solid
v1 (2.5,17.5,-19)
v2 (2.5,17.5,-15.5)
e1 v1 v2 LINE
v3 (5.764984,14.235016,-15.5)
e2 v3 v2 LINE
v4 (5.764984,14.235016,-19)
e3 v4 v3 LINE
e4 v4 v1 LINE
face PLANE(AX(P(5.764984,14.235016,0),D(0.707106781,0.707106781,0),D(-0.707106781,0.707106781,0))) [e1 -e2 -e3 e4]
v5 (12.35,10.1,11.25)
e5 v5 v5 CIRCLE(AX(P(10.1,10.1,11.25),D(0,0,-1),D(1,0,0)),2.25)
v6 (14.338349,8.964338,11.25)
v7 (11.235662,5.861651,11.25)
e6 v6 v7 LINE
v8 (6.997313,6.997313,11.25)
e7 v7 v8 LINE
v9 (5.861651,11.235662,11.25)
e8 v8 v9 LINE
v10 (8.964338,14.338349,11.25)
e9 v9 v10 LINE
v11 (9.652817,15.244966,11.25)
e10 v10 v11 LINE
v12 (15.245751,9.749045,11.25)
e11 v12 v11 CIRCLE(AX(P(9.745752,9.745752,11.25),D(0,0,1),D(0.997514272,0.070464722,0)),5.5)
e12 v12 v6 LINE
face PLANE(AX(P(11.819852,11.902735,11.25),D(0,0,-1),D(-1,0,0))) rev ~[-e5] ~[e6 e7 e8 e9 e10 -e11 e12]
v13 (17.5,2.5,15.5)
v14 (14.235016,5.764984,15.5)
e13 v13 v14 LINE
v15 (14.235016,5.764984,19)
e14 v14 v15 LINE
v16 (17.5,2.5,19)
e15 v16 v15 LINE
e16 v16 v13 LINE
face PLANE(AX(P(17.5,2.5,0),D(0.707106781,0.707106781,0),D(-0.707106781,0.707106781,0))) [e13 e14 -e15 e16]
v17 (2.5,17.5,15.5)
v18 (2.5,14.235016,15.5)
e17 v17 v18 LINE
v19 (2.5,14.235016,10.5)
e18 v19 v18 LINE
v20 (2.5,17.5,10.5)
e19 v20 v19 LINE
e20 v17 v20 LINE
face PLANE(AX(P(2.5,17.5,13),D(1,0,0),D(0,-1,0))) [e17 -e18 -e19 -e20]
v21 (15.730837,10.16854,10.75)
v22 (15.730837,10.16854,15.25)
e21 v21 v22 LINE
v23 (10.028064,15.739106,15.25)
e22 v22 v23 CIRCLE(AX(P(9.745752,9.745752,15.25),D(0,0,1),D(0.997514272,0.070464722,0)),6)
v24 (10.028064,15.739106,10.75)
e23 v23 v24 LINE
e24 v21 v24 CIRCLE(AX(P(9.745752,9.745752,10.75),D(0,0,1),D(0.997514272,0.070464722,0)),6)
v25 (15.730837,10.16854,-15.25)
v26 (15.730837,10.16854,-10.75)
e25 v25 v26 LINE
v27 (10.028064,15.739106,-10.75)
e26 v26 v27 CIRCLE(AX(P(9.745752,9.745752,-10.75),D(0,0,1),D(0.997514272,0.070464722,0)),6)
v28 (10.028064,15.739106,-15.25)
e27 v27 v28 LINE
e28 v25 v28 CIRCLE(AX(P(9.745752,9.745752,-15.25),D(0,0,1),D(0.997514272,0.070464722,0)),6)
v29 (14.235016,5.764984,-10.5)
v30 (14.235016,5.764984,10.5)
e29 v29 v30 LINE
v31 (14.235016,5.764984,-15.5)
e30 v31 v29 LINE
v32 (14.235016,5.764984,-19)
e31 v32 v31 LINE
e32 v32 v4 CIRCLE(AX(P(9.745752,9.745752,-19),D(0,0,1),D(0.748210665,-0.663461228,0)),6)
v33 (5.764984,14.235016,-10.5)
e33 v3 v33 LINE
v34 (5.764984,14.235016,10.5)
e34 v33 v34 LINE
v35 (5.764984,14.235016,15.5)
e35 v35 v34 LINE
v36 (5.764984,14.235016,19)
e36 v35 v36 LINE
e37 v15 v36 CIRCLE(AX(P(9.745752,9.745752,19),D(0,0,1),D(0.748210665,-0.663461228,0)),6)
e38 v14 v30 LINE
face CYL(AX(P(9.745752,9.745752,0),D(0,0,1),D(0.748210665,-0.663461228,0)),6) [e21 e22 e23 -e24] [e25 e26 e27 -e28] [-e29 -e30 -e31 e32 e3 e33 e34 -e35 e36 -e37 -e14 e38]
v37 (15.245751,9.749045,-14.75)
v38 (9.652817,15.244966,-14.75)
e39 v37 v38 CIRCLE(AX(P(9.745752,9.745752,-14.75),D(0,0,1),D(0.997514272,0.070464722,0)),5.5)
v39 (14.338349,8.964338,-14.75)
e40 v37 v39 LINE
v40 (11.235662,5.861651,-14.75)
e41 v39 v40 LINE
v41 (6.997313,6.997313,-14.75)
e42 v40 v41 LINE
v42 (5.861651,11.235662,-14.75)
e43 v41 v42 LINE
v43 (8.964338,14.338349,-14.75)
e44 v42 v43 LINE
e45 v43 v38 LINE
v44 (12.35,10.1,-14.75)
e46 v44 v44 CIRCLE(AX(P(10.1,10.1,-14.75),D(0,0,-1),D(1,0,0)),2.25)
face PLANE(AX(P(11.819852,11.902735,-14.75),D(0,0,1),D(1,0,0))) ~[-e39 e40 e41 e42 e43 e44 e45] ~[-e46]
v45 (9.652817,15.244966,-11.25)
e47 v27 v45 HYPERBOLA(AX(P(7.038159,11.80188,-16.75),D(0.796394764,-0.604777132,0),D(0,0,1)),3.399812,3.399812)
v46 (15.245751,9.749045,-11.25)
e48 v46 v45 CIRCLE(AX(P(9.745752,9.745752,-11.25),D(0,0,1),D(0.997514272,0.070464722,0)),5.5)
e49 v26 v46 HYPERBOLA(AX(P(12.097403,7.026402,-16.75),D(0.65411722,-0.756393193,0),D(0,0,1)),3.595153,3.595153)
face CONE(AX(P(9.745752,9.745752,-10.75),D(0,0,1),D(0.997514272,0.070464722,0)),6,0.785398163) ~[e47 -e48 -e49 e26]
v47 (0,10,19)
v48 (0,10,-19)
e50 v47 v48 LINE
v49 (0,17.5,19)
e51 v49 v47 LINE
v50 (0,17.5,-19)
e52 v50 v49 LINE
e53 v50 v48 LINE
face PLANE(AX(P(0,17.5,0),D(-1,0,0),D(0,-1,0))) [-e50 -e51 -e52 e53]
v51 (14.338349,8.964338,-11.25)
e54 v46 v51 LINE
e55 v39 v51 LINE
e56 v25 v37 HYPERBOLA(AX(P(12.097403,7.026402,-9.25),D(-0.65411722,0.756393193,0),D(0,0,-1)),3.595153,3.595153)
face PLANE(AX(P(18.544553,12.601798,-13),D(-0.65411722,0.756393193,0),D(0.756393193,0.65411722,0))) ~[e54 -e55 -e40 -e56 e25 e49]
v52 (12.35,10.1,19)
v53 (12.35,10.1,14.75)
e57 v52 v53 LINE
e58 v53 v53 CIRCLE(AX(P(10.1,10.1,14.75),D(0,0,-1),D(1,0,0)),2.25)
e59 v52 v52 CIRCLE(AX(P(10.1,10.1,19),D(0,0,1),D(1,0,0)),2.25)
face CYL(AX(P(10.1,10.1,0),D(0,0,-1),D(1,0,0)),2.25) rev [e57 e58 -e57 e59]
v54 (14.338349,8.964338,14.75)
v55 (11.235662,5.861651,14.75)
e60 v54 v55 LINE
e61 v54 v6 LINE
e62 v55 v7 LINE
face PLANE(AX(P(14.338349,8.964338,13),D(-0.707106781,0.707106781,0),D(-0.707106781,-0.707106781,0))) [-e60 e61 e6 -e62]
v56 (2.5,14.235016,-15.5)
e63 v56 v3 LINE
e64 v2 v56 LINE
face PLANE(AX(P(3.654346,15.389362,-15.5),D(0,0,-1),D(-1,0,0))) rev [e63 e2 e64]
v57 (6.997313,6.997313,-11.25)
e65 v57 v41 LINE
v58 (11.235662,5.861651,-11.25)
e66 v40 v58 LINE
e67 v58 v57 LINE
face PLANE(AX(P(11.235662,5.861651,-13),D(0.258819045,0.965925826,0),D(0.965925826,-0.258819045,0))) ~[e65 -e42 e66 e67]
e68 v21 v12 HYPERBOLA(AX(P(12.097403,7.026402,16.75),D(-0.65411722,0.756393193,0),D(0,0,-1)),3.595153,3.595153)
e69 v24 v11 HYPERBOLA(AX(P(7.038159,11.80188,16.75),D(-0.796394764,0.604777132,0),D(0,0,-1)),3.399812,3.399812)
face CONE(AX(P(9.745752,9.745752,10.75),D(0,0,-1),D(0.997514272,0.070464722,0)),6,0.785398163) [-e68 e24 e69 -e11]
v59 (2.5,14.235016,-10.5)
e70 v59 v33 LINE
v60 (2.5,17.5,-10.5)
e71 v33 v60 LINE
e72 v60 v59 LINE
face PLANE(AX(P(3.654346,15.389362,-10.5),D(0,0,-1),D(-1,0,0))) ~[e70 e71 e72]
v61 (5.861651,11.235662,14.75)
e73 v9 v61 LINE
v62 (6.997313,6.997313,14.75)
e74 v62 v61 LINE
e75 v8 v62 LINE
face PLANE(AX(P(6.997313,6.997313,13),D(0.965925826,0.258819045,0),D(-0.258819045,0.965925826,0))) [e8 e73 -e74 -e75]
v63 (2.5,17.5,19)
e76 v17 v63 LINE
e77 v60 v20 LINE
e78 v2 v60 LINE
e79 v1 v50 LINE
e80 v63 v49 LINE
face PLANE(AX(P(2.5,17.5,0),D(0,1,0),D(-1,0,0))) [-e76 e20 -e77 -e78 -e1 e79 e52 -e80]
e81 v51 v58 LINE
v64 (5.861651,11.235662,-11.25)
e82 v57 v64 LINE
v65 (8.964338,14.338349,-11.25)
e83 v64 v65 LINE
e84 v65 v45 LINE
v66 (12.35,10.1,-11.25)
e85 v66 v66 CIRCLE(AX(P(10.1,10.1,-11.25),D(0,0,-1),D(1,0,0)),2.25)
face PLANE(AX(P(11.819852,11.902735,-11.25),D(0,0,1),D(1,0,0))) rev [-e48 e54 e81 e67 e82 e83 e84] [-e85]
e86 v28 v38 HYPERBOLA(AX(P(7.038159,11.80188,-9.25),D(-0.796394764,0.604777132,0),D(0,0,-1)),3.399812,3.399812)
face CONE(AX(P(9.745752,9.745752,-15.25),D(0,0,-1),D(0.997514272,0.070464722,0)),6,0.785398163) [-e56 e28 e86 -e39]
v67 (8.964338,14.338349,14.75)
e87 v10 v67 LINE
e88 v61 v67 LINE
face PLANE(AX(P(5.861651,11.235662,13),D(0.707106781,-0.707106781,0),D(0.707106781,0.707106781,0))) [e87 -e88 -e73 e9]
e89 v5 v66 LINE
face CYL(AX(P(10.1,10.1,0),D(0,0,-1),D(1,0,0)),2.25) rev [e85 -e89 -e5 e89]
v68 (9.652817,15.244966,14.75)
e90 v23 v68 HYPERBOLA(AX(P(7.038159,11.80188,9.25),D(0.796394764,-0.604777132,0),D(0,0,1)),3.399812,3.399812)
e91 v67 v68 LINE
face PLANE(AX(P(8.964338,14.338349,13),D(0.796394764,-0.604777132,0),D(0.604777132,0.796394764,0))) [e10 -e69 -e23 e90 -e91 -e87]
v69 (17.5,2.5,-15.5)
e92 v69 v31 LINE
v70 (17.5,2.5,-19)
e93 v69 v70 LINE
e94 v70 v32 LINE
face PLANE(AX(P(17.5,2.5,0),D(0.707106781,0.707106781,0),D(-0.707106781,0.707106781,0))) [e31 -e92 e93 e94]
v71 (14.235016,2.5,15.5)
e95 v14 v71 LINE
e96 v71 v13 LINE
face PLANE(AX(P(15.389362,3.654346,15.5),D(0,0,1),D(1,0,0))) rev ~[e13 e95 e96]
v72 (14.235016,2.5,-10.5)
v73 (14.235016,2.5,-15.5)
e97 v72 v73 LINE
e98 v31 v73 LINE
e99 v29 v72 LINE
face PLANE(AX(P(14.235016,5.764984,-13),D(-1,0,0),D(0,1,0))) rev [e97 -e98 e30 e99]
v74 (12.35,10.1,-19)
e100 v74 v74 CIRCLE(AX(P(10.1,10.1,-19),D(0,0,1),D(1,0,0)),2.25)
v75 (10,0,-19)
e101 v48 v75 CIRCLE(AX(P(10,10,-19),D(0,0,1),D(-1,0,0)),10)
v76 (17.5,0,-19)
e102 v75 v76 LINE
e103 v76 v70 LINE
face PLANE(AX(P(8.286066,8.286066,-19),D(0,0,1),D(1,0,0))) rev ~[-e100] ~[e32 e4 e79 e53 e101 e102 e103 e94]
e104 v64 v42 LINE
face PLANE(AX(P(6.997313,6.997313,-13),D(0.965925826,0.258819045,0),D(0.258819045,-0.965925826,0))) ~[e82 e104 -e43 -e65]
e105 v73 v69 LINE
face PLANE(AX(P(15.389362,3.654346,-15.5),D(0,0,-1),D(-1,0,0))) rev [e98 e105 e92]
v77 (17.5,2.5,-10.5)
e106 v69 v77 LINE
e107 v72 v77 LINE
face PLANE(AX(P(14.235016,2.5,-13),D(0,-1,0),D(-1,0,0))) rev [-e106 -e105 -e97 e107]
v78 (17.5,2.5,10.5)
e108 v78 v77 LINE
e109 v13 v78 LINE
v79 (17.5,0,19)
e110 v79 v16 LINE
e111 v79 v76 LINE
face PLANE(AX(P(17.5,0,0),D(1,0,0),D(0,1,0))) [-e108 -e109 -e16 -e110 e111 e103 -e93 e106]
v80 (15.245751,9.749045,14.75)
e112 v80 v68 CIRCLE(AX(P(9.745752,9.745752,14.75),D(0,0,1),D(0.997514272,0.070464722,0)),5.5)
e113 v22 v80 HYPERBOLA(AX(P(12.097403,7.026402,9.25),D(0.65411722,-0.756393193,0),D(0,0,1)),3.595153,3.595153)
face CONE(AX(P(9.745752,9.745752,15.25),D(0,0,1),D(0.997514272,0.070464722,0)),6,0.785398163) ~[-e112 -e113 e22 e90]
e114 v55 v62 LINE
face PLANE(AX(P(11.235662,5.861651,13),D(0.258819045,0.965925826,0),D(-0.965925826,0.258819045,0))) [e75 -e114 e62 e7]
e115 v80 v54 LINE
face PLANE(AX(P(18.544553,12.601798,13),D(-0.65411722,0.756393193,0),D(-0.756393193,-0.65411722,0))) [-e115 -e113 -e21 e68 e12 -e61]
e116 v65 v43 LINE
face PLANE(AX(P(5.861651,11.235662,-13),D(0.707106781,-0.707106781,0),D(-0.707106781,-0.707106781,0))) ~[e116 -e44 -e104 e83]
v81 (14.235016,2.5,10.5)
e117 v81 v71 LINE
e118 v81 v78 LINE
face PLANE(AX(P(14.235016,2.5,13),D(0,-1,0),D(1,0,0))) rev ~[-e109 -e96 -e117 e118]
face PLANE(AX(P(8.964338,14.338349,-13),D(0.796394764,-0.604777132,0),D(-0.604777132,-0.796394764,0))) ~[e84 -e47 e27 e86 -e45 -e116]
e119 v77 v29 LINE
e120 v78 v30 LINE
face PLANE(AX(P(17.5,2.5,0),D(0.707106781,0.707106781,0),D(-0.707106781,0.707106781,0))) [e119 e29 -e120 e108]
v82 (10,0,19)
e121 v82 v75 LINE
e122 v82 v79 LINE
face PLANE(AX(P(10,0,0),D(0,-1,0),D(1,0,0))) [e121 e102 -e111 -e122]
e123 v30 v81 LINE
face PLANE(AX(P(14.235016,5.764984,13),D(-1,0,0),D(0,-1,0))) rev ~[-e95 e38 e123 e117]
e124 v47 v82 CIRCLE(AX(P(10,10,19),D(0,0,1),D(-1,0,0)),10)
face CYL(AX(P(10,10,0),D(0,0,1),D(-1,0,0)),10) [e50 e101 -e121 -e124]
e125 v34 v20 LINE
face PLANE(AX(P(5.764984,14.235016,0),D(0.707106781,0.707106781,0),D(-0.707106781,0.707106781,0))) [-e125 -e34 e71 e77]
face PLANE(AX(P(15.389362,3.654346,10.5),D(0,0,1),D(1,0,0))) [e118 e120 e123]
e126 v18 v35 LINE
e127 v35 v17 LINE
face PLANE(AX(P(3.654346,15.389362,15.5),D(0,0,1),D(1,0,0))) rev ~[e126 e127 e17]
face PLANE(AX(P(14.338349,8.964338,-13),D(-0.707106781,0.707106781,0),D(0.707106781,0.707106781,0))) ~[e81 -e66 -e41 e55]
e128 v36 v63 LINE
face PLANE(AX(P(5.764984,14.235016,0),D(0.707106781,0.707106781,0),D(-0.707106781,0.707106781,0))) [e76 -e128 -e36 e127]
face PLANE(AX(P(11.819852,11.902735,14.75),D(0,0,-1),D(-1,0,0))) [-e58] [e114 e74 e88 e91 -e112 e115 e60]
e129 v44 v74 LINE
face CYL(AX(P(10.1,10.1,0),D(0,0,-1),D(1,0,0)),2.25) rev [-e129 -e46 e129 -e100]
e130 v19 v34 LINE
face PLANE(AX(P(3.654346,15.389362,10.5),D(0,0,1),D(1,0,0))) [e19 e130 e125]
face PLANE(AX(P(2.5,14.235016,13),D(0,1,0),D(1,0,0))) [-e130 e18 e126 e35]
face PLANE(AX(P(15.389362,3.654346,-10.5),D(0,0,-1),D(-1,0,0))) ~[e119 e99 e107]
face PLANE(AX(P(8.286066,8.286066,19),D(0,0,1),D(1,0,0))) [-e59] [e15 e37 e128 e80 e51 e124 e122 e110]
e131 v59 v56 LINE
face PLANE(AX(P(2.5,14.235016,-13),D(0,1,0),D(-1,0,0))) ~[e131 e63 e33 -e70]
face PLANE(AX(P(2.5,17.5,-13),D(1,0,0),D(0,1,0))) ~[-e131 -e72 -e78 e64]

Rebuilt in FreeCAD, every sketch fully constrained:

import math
import FreeCAD as App
import Part
import Sketcher
Q = App.Units.Quantity


def edges_at(feature, points):
    """Names of the edges that pass closest to the given points."""
    edges = feature.Shape.Edges
    near = lambda p: min(range(len(edges)), key=lambda i: edges[i].distToShape(Part.Vertex(*p))[0])
    return sorted({f"Edge{near(p) + 1}" for p in points})


def add_polygon(sketch, points):
    """Adds a closed chain of lines whose ends are joined by coincident constraints."""
    first, n = sketch.GeometryCount, len(points)
    for a, b in zip(points, points[1:] + points[:1]):
        sketch.addGeometry(Part.LineSegment(App.Vector(*a, 0), App.Vector(*b, 0)), False)
    for i in range(n):
        sketch.addConstraint(Sketcher.Constraint("Coincident", first + i, 2, first + (i + 1) % n, 1))

doc = App.newDocument("Part")
body = doc.addObject("PartDesign::Body", "Body")

# Sketch on XY plane
sketch1 = body.newObject("Sketcher::SketchObject", "Sketch")
sketch1.AttachmentSupport = (doc.getObject("XY_Plane"), [""])
sketch1.MapMode = "FlatFace"
sketch1.addGeometry(Part.LineSegment(App.Vector(17.5, 2.5, 0), App.Vector(14.2, 5.8, 0)), False)
sketch1.addGeometry(Part.ArcOfCircle(Part.Circle(App.Vector(9.7, 9.7, 0), App.Vector(0, 0, 1), 6), math.radians(-42), math.radians(132)), False)
sketch1.addGeometry(Part.LineSegment(App.Vector(5.8, 14.2, 0), App.Vector(2.5, 17.5, 0)), False)
sketch1.addGeometry(Part.LineSegment(App.Vector(2.5, 17.5, 0), App.Vector(0, 17.5, 0)), False)
sketch1.addGeometry(Part.LineSegment(App.Vector(0, 17.5, 0), App.Vector(0, 10, 0)), False)
sketch1.addGeometry(Part.ArcOfCircle(Part.Circle(App.Vector(10, 10, 0), App.Vector(0, 0, 1), 10), math.radians(180), math.radians(270)), False)
sketch1.addGeometry(Part.LineSegment(App.Vector(10, 0, 0), App.Vector(17.5, 0, 0)), False)
sketch1.addGeometry(Part.LineSegment(App.Vector(17.5, 0, 0), App.Vector(17.5, 2.5, 0)), False)
sketch1.addGeometry(Part.Circle(App.Vector(10.1, 10.1, 0), App.Vector(0, 0, 1), 2.2), False)
sketch1.addConstraint(Sketcher.Constraint("Coincident", 0, 2, 1, 1))
sketch1.addConstraint(Sketcher.Constraint("Coincident", 1, 2, 2, 1))
sketch1.addConstraint(Sketcher.Constraint("Coincident", 2, 2, 3, 1))
sketch1.addConstraint(Sketcher.Constraint("Coincident", 3, 2, 4, 1))
sketch1.addConstraint(Sketcher.Constraint("Tangent", 4, 2, 5, 1))
sketch1.addConstraint(Sketcher.Constraint("Tangent", 5, 2, 6, 1))
sketch1.addConstraint(Sketcher.Constraint("Coincident", 6, 2, 7, 1))
sketch1.addConstraint(Sketcher.Constraint("Coincident", 7, 2, 0, 1))
sketch1.addConstraint(Sketcher.Constraint("Horizontal", 3))
sketch1.addConstraint(Sketcher.Constraint("Vertical", 4))
sketch1.addConstraint(Sketcher.Constraint("Horizontal", 6))
sketch1.addConstraint(Sketcher.Constraint("Vertical", 7))
sketch1.addConstraint(Sketcher.Constraint("PointOnObject", 3, 2, -2))
sketch1.addConstraint(Sketcher.Constraint("PointOnObject", 5, 2, -1))
sketch1.addConstraint(Sketcher.Constraint("Parallel", 0, 2))
sketch1.addConstraint(Sketcher.Constraint("Equal", 6, 4))
sketch1.addConstraint(Sketcher.Constraint("Equal", 3, 7))
sketch1.addConstraint(Sketcher.Constraint("Equal", 0, 2))
sketch1.addConstraint(Sketcher.Constraint("Radius", 1, Q("6 mm")))
sketch1.addConstraint(Sketcher.Constraint("Radius", 5, Q("10 mm")))
sketch1.addConstraint(Sketcher.Constraint("Diameter", 8, Q("4.5 mm")))
sketch1.addConstraint(Sketcher.Constraint("Angle", 0, Q("135 deg")))
sketch1.addConstraint(Sketcher.Constraint("DistanceX", 3, 2, 3, 1, Q("2.5 mm")))
sketch1.addConstraint(Sketcher.Constraint("DistanceX", 6, 1, 6, 2, Q("7.5 mm")))
sketch1.addConstraint(Sketcher.Constraint("DistanceX", -1, 1, 8, 3, Q("10.1 mm")))
sketch1.addConstraint(Sketcher.Constraint("DistanceY", -1, 1, 8, 3, Q("10.1 mm")))
sketch1.addConstraint(Sketcher.Constraint("DistanceX", -1, 1, 1, 3, Q("9.745752 mm")))
pad1 = body.newObject("PartDesign::Pad", "Pad")
pad1.Profile = sketch1
pad1.Length = 38
pad1.Midplane = True

# Sketch on XY plane
sketch2 = body.newObject("Sketcher::SketchObject", "Sketch001")
sketch2.AttachmentSupport = (doc.getObject("XY_Plane"), [""])
sketch2.MapMode = "FlatFace"
sketch2.AttachmentOffset = App.Placement(App.Vector(0, 0, 13), App.Rotation())
add_polygon(sketch2, [(12.3, 18.7), (9, 14.3), (5.9, 11.2), (7, 7), (11.2, 5.9), (14.3, 9), (18.5, 12.6)])  # lines 0-6
sketch2.addConstraint(Sketcher.Constraint("Parallel", 1, 4))
sketch2.addConstraint(Sketcher.Constraint("Equal", 1, 2))
sketch2.addConstraint(Sketcher.Constraint("Equal", 2, 3))
sketch2.addConstraint(Sketcher.Constraint("Equal", 3, 4))
sketch2.addConstraint(Sketcher.Constraint("Angle", 1, Q("-135 deg")))
sketch2.addConstraint(Sketcher.Constraint("Angle", 2, Q("-75 deg")))
sketch2.addConstraint(Sketcher.Constraint("Angle", 3, Q("-15 deg")))
sketch2.addConstraint(Sketcher.Constraint("DistanceY", 3, 2, 0, 2, Q("8.476699 mm")))
sketch2.addConstraint(Sketcher.Constraint("DistanceX", 1, 2, 5, 2, Q("12.682902 mm")))
sketch2.addConstraint(Sketcher.Constraint("Distance", 0, Q("5.49788 mm")))
sketch2.addConstraint(Sketcher.Constraint("Distance", 5, Q("5.560869 mm")))
sketch2.addConstraint(Sketcher.Constraint("DistanceY", -1, 1, 0, 2, Q("14.338349 mm")))
sketch2.addConstraint(Sketcher.Constraint("DistanceX", -1, 1, 1, 2, Q("5.861651 mm")))
sketch2.addConstraint(Sketcher.Constraint("DistanceX", -1, 1, 6, 2, Q("12.28933 mm")))
pocket1 = body.newObject("PartDesign::Pocket", "Pocket")
pocket1.Profile = sketch2
pocket1.Length = 3.5
pocket1.Midplane = True
doc.recompute()

chamfer = body.newObject("PartDesign::Chamfer", "Chamfer")
chamfer.Base = (pocket1, edges_at(pocket1, [(13.938, 14.038, 14.75), (13.938, 14.038, 11.25)]))
chamfer.Size = 0.5

# Sketch on XY plane
sketch3 = body.newObject("Sketcher::SketchObject", "Sketch002")
sketch3.AttachmentSupport = (doc.getObject("XY_Plane"), [""])
sketch3.MapMode = "FlatFace"
sketch3.AttachmentOffset = App.Placement(App.Vector(0, 0, 13), App.Rotation())
add_polygon(sketch3, [(2.5, 17.5), (2.5, 14.2), (5.8, 14.2)])  # lines 0-2
add_polygon(sketch3, [(14.2, 5.8), (14.2, 2.5), (17.5, 2.5)])  # lines 3-5
sketch3.addConstraint(Sketcher.Constraint("Vertical", 0))
sketch3.addConstraint(Sketcher.Constraint("Horizontal", 1))
sketch3.addConstraint(Sketcher.Constraint("Vertical", 3))
sketch3.addConstraint(Sketcher.Constraint("Horizontal", 4))
sketch3.addConstraint(Sketcher.Constraint("Parallel", 2, 5))
sketch3.addConstraint(Sketcher.Constraint("Equal", 1, 4))
sketch3.addConstraint(Sketcher.Constraint("Equal", 4, 0))
sketch3.addConstraint(Sketcher.Constraint("DistanceY", 3, 2, 2, 2, Q("15 mm")))
sketch3.addConstraint(Sketcher.Constraint("DistanceX", 0, 2, 4, 2, Q("15 mm")))
sketch3.addConstraint(Sketcher.Constraint("DistanceX", -1, 1, 0, 2, Q("2.5 mm")))
sketch3.addConstraint(Sketcher.Constraint("DistanceY", -1, 1, 2, 2, Q("17.5 mm")))
sketch3.addConstraint(Sketcher.Constraint("DistanceX", 1, 1, 1, 2, Q("3.264984 mm")))
pocket2 = body.newObject("PartDesign::Pocket", "Pocket001")
pocket2.Profile = sketch3
pocket2.Length = 5
pocket2.Midplane = True
doc.recompute()

mirrored = body.newObject("PartDesign::Mirrored", "Mirrored")
mirrored.Originals = [pocket1, pocket2]
mirrored.MirrorPlane = (doc.getObject("XY_Plane"), [""])
body.Tip = mirrored
doc.recompute()

chamfer2 = body.newObject("PartDesign::Chamfer", "Chamfer001")
chamfer2.Base = (mirrored, edges_at(mirrored, [(13.938, 14.038, -14.75), (13.938, 14.038, -11.25)]))
chamfer2.Size = 0.5

doc.recompute()
